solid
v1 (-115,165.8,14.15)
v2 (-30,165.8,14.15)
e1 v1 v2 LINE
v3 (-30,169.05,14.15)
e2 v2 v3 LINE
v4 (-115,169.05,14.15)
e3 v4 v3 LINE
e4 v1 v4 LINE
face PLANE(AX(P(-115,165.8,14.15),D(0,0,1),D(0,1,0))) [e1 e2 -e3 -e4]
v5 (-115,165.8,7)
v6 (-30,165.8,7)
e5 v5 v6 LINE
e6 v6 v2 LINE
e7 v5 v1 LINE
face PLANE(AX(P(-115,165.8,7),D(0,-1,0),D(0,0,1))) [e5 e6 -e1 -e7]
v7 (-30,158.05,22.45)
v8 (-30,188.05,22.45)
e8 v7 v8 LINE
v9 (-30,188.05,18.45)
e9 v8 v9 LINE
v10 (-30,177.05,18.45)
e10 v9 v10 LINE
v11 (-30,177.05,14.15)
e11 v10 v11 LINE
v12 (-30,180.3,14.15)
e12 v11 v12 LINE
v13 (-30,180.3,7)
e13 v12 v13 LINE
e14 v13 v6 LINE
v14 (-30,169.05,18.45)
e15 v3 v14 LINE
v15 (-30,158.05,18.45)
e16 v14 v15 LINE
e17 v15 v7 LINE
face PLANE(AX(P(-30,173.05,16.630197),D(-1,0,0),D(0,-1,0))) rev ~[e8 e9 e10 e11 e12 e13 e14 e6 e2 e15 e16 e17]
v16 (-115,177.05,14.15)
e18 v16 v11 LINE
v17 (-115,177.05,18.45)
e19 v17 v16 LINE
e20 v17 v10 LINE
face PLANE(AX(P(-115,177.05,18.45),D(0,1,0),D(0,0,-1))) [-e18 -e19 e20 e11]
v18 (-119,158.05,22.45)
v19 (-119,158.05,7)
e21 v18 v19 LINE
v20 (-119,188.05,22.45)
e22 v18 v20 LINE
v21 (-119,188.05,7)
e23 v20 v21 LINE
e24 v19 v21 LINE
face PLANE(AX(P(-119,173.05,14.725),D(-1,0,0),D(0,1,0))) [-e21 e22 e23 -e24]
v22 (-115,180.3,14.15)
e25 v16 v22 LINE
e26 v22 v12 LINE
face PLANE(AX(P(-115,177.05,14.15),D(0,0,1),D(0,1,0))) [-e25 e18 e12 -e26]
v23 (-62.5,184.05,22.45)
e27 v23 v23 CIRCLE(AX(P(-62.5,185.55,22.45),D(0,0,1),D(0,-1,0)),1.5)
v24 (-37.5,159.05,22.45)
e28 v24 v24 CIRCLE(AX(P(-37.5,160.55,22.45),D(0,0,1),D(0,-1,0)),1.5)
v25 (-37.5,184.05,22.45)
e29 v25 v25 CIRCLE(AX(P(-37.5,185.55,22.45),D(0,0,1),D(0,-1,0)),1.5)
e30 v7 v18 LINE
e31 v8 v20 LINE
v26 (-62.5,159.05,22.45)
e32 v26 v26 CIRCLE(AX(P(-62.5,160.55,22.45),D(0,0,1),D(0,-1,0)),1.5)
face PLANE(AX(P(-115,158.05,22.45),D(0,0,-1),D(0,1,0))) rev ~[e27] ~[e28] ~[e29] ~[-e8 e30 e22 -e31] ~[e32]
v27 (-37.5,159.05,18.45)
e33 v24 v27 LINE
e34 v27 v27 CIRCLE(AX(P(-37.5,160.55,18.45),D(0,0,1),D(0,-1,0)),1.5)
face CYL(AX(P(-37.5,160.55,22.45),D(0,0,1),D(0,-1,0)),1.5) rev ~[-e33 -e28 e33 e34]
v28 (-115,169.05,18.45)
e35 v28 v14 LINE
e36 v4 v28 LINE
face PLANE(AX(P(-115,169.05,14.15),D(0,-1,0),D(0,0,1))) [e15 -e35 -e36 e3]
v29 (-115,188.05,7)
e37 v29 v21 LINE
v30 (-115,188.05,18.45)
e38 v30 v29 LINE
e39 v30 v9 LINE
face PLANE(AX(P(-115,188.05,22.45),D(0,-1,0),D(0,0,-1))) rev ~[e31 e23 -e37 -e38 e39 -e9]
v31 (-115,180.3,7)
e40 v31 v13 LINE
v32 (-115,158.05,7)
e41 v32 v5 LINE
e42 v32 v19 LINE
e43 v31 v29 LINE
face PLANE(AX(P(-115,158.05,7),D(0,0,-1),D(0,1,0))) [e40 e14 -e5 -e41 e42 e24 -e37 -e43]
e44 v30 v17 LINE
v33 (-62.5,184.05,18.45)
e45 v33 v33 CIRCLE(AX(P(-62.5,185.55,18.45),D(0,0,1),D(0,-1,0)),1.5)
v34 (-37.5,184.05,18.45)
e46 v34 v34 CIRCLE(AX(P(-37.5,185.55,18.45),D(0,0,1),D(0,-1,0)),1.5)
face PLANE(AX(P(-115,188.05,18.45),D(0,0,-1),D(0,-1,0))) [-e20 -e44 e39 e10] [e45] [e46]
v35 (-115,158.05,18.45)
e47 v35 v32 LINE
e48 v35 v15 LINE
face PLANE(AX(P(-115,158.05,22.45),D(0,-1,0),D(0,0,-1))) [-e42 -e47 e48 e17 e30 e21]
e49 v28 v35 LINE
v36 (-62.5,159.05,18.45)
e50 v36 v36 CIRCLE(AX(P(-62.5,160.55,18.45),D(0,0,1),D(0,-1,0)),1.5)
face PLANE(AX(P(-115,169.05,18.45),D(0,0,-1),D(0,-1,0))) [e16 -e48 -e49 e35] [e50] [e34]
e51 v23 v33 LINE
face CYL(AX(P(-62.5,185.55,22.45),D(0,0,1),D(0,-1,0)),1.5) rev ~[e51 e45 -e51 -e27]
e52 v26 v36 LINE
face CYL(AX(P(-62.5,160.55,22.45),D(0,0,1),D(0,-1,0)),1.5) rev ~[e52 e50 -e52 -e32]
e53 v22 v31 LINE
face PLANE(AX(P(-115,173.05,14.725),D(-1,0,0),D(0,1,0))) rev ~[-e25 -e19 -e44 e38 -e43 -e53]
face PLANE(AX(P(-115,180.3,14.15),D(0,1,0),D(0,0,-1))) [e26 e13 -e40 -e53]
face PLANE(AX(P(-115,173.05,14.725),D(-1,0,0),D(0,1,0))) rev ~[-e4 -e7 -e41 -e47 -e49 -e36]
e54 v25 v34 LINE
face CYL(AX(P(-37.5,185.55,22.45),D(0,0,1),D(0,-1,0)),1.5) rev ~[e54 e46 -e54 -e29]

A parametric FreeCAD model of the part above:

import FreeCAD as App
import Part
import Sketcher

V = App.Vector
Q = App.Units.Quantity

doc = App.newDocument("Part")
body = doc.addObject("PartDesign::Body", "Body")

# Sketch on YZ plane
sketch1 = body.newObject("Sketcher::SketchObject", "Sketch")
sketch1.AttachmentSupport = (doc.getObject("YZ_Plane"), [""])
sketch1.MapMode = "FlatFace"
sketch1.addGeometry(Part.LineSegment(V(-7.75, 15.45, 0), V(-7.75, 11.45, 0)), False)
sketch1.addGeometry(Part.LineSegment(V(-7.75, 11.45, 0), V(3.25, 11.45, 0)), False)
sketch1.addGeometry(Part.LineSegment(V(3.25, 11.45, 0), V(3.25, 7.15, 0)), False)
sketch1.addGeometry(Part.LineSegment(V(3.25, 7.15, 0), V(0, 7.15, 0)), False)
sketch1.addGeometry(Part.LineSegment(V(0, 7.15, 0), V(0, 0, 0)), False)
sketch1.addGeometry(Part.LineSegment(V(0, 0, 0), V(14.5, 0, 0)), False)
sketch1.addGeometry(Part.LineSegment(V(14.5, 0, 0), V(14.5, 7.15, 0)), False)
sketch1.addGeometry(Part.LineSegment(V(14.5, 7.15, 0), V(11.25, 7.15, 0)), False)
sketch1.addGeometry(Part.LineSegment(V(11.25, 7.15, 0), V(11.25, 11.45, 0)), False)
sketch1.addGeometry(Part.LineSegment(V(11.25, 11.45, 0), V(22.25, 11.45, 0)), False)
sketch1.addGeometry(Part.LineSegment(V(22.25, 11.45, 0), V(22.25, 15.45, 0)), False)
sketch1.addGeometry(Part.LineSegment(V(22.25, 15.45, 0), V(-7.75, 15.45, 0)), False)
sketch1.addConstraint(Sketcher.Constraint("Coincident", 0, 2, 1, 1))
sketch1.addConstraint(Sketcher.Constraint("Coincident", 1, 2, 2, 1))
sketch1.addConstraint(Sketcher.Constraint("Coincident", 2, 2, 3, 1))
sketch1.addConstraint(Sketcher.Constraint("Coincident", 3, 2, 4, 1))
sketch1.addConstraint(Sketcher.Constraint("Coincident", 4, 2, 5, 1))
sketch1.addConstraint(Sketcher.Constraint("Coincident", 5, 2, 6, 1))
sketch1.addConstraint(Sketcher.Constraint("Coincident", 6, 2, 7, 1))
sketch1.addConstraint(Sketcher.Constraint("Coincident", 7, 2, 8, 1))
sketch1.addConstraint(Sketcher.Constraint("Coincident", 8, 2, 9, 1))
sketch1.addConstraint(Sketcher.Constraint("Coincident", 9, 2, 10, 1))
sketch1.addConstraint(Sketcher.Constraint("Coincident", 10, 2, 11, 1))
sketch1.addConstraint(Sketcher.Constraint("Coincident", 11, 2, 0, 1))
sketch1.addConstraint(Sketcher.Constraint("Vertical", 0))
sketch1.addConstraint(Sketcher.Constraint("Horizontal", 1))
sketch1.addConstraint(Sketcher.Constraint("Vertical", 2))
sketch1.addConstraint(Sketcher.Constraint("Horizontal", 3))
sketch1.addConstraint(Sketcher.Constraint("Vertical", 4))
sketch1.addConstraint(Sketcher.Constraint("Horizontal", 5))
sketch1.addConstraint(Sketcher.Constraint("Vertical", 6))
sketch1.addConstraint(Sketcher.Constraint("Horizontal", 7))
sketch1.addConstraint(Sketcher.Constraint("Vertical", 8))
sketch1.addConstraint(Sketcher.Constraint("Horizontal", 9))
sketch1.addConstraint(Sketcher.Constraint("Vertical", 10))
sketch1.addConstraint(Sketcher.Constraint("Horizontal", 11))
sketch1.addConstraint(Sketcher.Constraint("Coincident", 4, 2, -1, 1))
sketch1.addConstraint(Sketcher.Constraint("Horizontal", 3, 2, 6, 2))
sketch1.addConstraint(Sketcher.Constraint("Horizontal", 1, 2, 8, 2))
sketch1.addConstraint(Sketcher.Constraint("Equal", 3, 7))
sketch1.addConstraint(Sketcher.Constraint("Equal", 1, 9))
sketch1.addConstraint(Sketcher.Constraint("DistanceX", 1, 1, 1, 2, Q("11 mm")))
sketch1.addConstraint(Sketcher.Constraint("DistanceX", 11, 2, 11, 1, Q("30 mm")))
sketch1.addConstraint(Sketcher.Constraint("DistanceY", 0, 2, 0, 1, Q("4 mm")))
sketch1.addConstraint(Sketcher.Constraint("DistanceX", 5, 1, 5, 2, Q("14.5 mm")))
sketch1.addConstraint(Sketcher.Constraint("DistanceY", 2, 2, 2, 1, Q("4.3 mm")))
sketch1.addConstraint(Sketcher.Constraint("DistanceY", 4, 2, 4, 1, Q("7.15 mm")))
pad1 = body.newObject("PartDesign::Pad", "Pad")
pad1.Profile = sketch1
pad1.Length = 85

# Sketch on XY plane
sketch2 = body.newObject("Sketcher::SketchObject", "Sketch001")
sketch2.AttachmentSupport = (doc.getObject("XY_Plane"), [""])
sketch2.MapMode = "FlatFace"
sketch2.AttachmentOffset = App.Placement(V(0, 0, 15.45), App.Rotation())
sketch2.addGeometry(Part.Circle(V(77.5, 19.75, 0), V(0, 0, 1), 1.5), False)
sketch2.addGeometry(Part.Circle(V(52.5, 19.75, 0), V(0, 0, 1), 1.5), False)
sketch2.addGeometry(Part.Circle(V(52.5, -5.25, 0), V(0, 0, 1), 1.5), False)
sketch2.addGeometry(Part.Circle(V(77.5, -5.25, 0), V(0, 0, 1), 1.5), False)
sketch2.addConstraint(Sketcher.Constraint("Equal", 0, 1))
sketch2.addConstraint(Sketcher.Constraint("Equal", 1, 2))
sketch2.addConstraint(Sketcher.Constraint("Equal", 2, 3))
sketch2.addConstraint(Sketcher.Constraint("Horizontal", 0, 3, 1, 3))
sketch2.addConstraint(Sketcher.Constraint("Horizontal", 2, 3, 3, 3))
sketch2.addConstraint(Sketcher.Constraint("Vertical", 1, 3, 2, 3))
sketch2.addConstraint(Sketcher.Constraint("Vertical", 0, 3, 3, 3))
sketch2.addConstraint(Sketcher.Constraint("Diameter", 0, Q("3 mm")))
sketch2.addConstraint(Sketcher.Constraint("DistanceX", 1, 3, 0, 3, Q("25 mm")))
sketch2.addConstraint(Sketcher.Constraint("DistanceY", 2, 3, 1, 3, Q("25 mm")))
sketch2.addConstraint(Sketcher.Constraint("DistanceX", -1, 1, 0, 3, Q("77.5 mm")))
sketch2.addConstraint(Sketcher.Constraint("DistanceY", -1, 1, 0, 3, Q("19.75 mm")))
pocket1 = body.newObject("PartDesign::Pocket", "Pocket")
pocket1.Profile = sketch2
pocket1.Type = "ThroughAll"

# Sketch on YZ plane
sketch3 = body.newObject("Sketcher::SketchObject", "Sketch002")
sketch3.AttachmentSupport = (doc.getObject("YZ_Plane"), [""])
sketch3.MapMode = "FlatFace"
sketch3.addGeometry(Part.LineSegment(V(-7.75, 0, 0), V(-7.75, 15.45, 0)), False)
sketch3.addGeometry(Part.LineSegment(V(-7.75, 15.45, 0), V(22.25, 15.45, 0)), False)
sketch3.addGeometry(Part.LineSegment(V(22.25, 15.45, 0), V(22.25, 0, 0)), False)
sketch3.addGeometry(Part.LineSegment(V(22.25, 0, 0), V(-7.75, 0, 0)), False)
sketch3.addConstraint(Sketcher.Constraint("Coincident", 0, 2, 1, 1))
sketch3.addConstraint(Sketcher.Constraint("Coincident", 1, 2, 2, 1))
sketch3.addConstraint(Sketcher.Constraint("Coincident", 2, 2, 3, 1))
sketch3.addConstraint(Sketcher.Constraint("Coincident", 3, 2, 0, 1))
sketch3.addConstraint(Sketcher.Constraint("Vertical", 0))
sketch3.addConstraint(Sketcher.Constraint("Horizontal", 1))
sketch3.addConstraint(Sketcher.Constraint("Vertical", 2))
sketch3.addConstraint(Sketcher.Constraint("Horizontal", 3))
sketch3.addConstraint(Sketcher.Constraint("PointOnObject", 2, 2, -1))
sketch3.addConstraint(Sketcher.Constraint("DistanceX", 1, 1, 1, 2, Q("30 mm")))
sketch3.addConstraint(Sketcher.Constraint("DistanceY", 0, 1, 0, 2, Q("15.45 mm")))
sketch3.addConstraint(Sketcher.Constraint("DistanceX", 0, 2, -1, 1, Q("7.75 mm")))
pad2 = body.newObject("PartDesign::Pad", "Pad001")
pad2.Profile = sketch3
pad2.Length = 4
pad2.Reversed = True
body2 = doc.addObject("PartDesign::Body", "Body001")
doc.recompute()

body.Placement = App.Placement(V(-115, 165.8, 7), App.Rotation(V(0, 0, 1), 0))
boolean = body2.newObject("PartDesign::Boolean", "Boolean")
boolean.Type = "Fuse"
boolean.addObjects([body])

doc.recompute()
